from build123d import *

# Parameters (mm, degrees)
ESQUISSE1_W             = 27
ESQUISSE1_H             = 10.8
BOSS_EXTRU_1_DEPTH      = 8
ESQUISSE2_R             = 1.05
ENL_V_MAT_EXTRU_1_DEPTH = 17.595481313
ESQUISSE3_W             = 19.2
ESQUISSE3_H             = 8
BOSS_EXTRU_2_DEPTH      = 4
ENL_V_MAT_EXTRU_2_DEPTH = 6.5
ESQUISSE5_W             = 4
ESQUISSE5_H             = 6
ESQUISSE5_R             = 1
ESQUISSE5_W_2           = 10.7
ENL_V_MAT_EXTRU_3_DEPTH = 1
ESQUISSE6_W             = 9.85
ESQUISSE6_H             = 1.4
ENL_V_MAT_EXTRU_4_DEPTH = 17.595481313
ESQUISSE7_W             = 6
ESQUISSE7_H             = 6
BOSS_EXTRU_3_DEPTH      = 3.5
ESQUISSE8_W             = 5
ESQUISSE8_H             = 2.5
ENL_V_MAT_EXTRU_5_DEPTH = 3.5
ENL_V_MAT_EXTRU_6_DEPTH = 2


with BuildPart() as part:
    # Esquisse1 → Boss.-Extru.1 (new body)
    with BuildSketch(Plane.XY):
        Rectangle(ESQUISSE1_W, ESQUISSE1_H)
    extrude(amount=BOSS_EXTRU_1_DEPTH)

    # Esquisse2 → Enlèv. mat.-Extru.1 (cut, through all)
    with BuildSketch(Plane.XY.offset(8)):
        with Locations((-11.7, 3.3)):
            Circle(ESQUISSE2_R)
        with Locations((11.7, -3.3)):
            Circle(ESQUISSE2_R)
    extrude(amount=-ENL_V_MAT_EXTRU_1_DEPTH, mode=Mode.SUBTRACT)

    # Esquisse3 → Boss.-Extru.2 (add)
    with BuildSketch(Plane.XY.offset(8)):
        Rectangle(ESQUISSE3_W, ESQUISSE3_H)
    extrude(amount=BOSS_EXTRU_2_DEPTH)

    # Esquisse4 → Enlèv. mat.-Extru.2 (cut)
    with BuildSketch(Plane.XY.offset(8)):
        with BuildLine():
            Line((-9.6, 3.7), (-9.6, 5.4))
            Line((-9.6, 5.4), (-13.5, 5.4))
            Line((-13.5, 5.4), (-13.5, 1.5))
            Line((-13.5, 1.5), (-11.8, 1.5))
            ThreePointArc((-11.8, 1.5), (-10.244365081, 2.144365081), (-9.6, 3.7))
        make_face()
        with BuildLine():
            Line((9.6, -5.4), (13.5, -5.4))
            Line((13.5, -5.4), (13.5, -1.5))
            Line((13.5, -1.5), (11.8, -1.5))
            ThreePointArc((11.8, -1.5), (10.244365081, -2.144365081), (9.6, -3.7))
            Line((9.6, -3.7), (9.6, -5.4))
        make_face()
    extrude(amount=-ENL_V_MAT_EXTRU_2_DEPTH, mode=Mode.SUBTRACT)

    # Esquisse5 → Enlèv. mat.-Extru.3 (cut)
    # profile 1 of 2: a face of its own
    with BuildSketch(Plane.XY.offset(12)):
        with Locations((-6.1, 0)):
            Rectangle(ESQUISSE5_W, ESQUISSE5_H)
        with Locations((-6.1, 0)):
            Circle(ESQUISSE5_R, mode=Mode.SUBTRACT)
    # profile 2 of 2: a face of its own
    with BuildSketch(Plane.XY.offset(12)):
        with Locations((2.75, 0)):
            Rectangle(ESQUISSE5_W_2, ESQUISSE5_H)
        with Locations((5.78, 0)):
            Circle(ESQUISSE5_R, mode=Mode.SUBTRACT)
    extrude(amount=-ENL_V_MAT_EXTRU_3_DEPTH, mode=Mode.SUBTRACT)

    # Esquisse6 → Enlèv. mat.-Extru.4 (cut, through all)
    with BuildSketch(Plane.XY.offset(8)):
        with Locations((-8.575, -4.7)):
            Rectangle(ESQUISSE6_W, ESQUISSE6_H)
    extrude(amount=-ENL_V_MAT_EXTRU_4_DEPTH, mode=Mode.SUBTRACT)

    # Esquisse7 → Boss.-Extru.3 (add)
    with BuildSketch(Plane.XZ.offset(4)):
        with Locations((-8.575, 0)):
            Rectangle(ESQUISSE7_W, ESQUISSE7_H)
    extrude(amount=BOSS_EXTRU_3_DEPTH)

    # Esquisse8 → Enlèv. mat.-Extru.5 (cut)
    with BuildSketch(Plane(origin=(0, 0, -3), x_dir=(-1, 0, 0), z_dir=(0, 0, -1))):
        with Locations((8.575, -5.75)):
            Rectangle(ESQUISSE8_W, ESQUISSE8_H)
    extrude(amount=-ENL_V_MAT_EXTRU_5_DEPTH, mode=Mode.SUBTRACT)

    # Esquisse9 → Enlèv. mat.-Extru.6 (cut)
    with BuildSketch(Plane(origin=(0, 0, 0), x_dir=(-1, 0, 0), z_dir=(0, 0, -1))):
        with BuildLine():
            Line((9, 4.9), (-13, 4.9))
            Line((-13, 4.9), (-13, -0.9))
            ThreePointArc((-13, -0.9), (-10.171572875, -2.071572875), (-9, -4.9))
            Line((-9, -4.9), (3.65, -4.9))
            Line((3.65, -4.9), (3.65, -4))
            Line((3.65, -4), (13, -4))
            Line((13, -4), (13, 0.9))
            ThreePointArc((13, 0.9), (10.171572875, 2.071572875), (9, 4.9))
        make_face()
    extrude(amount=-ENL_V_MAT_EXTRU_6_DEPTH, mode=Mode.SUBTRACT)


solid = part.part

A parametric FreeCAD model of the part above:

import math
import FreeCAD as App
import Part
import Sketcher
Q = App.Units.Quantity

doc = App.newDocument("Part")
body = doc.addObject("PartDesign::Body", "Body")

# Sketch on XY plane
sketch1 = body.newObject("Sketcher::SketchObject", "Sketch")
sketch1.AttachmentSupport = (doc.getObject("XY_Plane"), [""])
sketch1.MapMode = "FlatFace"
sketch1.addGeometry([
    Part.LineSegment(App.Vector(-13.5, 5.4, 0), App.Vector(-13.5, -5.4, 0)),
    Part.LineSegment(App.Vector(-13.5, -5.4, 0), App.Vector(13.5, -5.4, 0)),
    Part.LineSegment(App.Vector(13.5, -5.4, 0), App.Vector(13.5, 5.4, 0)),
    Part.LineSegment(App.Vector(13.5, 5.4, 0), App.Vector(-13.5, 5.4, 0)),
], False)
sketch1.addConstraint([
    Sketcher.Constraint("Coincident", 0, 2, 1, 1),
    Sketcher.Constraint("Coincident", 1, 2, 2, 1),
    Sketcher.Constraint("Coincident", 2, 2, 3, 1),
    Sketcher.Constraint("Coincident", 3, 2, 0, 1),
    Sketcher.Constraint("Vertical", 0),
    Sketcher.Constraint("Horizontal", 1),
    Sketcher.Constraint("Vertical", 2),
    Sketcher.Constraint("Horizontal", 3),
    Sketcher.Constraint("Symmetric", 0, 2, 2, 2, -1, 1),
    Sketcher.Constraint("DistanceX", 1, 1, 1, 2, Q("27 mm")),
    Sketcher.Constraint("DistanceY", 0, 2, 0, 1, Q("10.8 mm")),
])
pad1 = body.newObject("PartDesign::Pad", "Pad")
pad1.Profile = sketch1
pad1.Length = 8

# Sketch on XY plane
sketch2 = body.newObject("Sketcher::SketchObject", "Sketch001")
sketch2.AttachmentSupport = (doc.getObject("XY_Plane"), [""])
sketch2.MapMode = "FlatFace"
sketch2.AttachmentOffset = App.Placement(App.Vector(0, 0, 8), App.Rotation())
sketch2.addGeometry([
    Part.Circle(App.Vector(-11.7, 3.3, 0), App.Vector(0, 0, 1), 1.05),
    Part.Circle(App.Vector(11.7, -3.3, 0), App.Vector(0, 0, 1), 1.05),
], False)
sketch2.addConstraint([
    Sketcher.Constraint("Equal", 0, 1),
    Sketcher.Constraint("Symmetric", 0, 3, 1, 3, -1, 1),
    Sketcher.Constraint("Diameter", 0, Q("2.1 mm")),
    Sketcher.Constraint("DistanceX", 0, 3, -1, 1, Q("11.7 mm")),
    Sketcher.Constraint("DistanceY", -1, 1, 0, 3, Q("3.3 mm")),
])
pocket1 = body.newObject("PartDesign::Pocket", "Pocket")
pocket1.Profile = sketch2
pocket1.Type = "ThroughAll"

# Sketch on XY plane
sketch3 = body.newObject("Sketcher::SketchObject", "Sketch002")
sketch3.AttachmentSupport = (doc.getObject("XY_Plane"), [""])
sketch3.MapMode = "FlatFace"
sketch3.AttachmentOffset = App.Placement(App.Vector(0, 0, 8), App.Rotation())
sketch3.addGeometry([
    Part.LineSegment(App.Vector(-9.6, 4, 0), App.Vector(-9.6, -4, 0)),
    Part.LineSegment(App.Vector(-9.6, -4, 0), App.Vector(9.6, -4, 0)),
    Part.LineSegment(App.Vector(9.6, -4, 0), App.Vector(9.6, 4, 0)),
    Part.LineSegment(App.Vector(9.6, 4, 0), App.Vector(-9.6, 4, 0)),
], False)
sketch3.addConstraint([
    Sketcher.Constraint("Coincident", 0, 2, 1, 1),
    Sketcher.Constraint("Coincident", 1, 2, 2, 1),
    Sketcher.Constraint("Coincident", 2, 2, 3, 1),
    Sketcher.Constraint("Coincident", 3, 2, 0, 1),
    Sketcher.Constraint("Vertical", 0),
    Sketcher.Constraint("Horizontal", 1),
    Sketcher.Constraint("Vertical", 2),
    Sketcher.Constraint("Horizontal", 3),
    Sketcher.Constraint("Symmetric", 0, 2, 2, 2, -1, 1),
    Sketcher.Constraint("DistanceY", 0, 2, 0, 1, Q("8 mm")),
    Sketcher.Constraint("DistanceX", 1, 1, 1, 2, Q("19.2 mm")),
])
pad2 = body.newObject("PartDesign::Pad", "Pad001")
pad2.Profile = sketch3
pad2.Length = 4

# Sketch on XY plane
sketch4 = body.newObject("Sketcher::SketchObject", "Sketch003")
sketch4.AttachmentSupport = (doc.getObject("XY_Plane"), [""])
sketch4.MapMode = "FlatFace"
sketch4.AttachmentOffset = App.Placement(App.Vector(0, 0, 8), App.Rotation())
sketch4.addGeometry([
    Part.LineSegment(App.Vector(-9.6, 3.7, 0), App.Vector(-9.6, 5.4, 0)),  # 0
    Part.LineSegment(App.Vector(-9.6, 5.4, 0), App.Vector(-13.5, 5.4, 0)),  # 1
    Part.LineSegment(App.Vector(-13.5, 5.4, 0), App.Vector(-13.5, 1.5, 0)),  # 2
    Part.LineSegment(App.Vector(-13.5, 1.5, 0), App.Vector(-11.8, 1.5, 0)),  # 3
    Part.ArcOfCircle(Part.Circle(App.Vector(-11.8, 3.7, 0), App.Vector(0, 0, 1), 2.2), math.radians(-90), math.radians(0)),  # 4
    Part.LineSegment(App.Vector(9.6, -5.4, 0), App.Vector(13.5, -5.4, 0)),  # 5
    Part.LineSegment(App.Vector(13.5, -5.4, 0), App.Vector(13.5, -1.5, 0)),  # 6
    Part.LineSegment(App.Vector(13.5, -1.5, 0), App.Vector(11.8, -1.5, 0)),  # 7
    Part.ArcOfCircle(Part.Circle(App.Vector(11.8, -3.7, 0), App.Vector(0, 0, 1), 2.2), math.radians(90), math.radians(180)),  # 8
    Part.LineSegment(App.Vector(9.6, -3.7, 0), App.Vector(9.6, -5.4, 0)),  # 9
], False)
sketch4.addConstraint([
    Sketcher.Constraint("Coincident", 0, 2, 1, 1),
    Sketcher.Constraint("Coincident", 1, 2, 2, 1),
    Sketcher.Constraint("Coincident", 2, 2, 3, 1),
    Sketcher.Constraint("Tangent", 3, 2, 4, 1),
    Sketcher.Constraint("Tangent", 4, 2, 0, 1),
    Sketcher.Constraint("Coincident", 5, 2, 6, 1),
    Sketcher.Constraint("Coincident", 6, 2, 7, 1),
    Sketcher.Constraint("Tangent", 7, 2, 8, 1),
    Sketcher.Constraint("Tangent", 8, 2, 9, 1),
    Sketcher.Constraint("Coincident", 9, 2, 5, 1),
    Sketcher.Constraint("Vertical", 0),
    Sketcher.Constraint("Horizontal", 1),
    Sketcher.Constraint("Vertical", 2),
    Sketcher.Constraint("Horizontal", 3),
    Sketcher.Constraint("Horizontal", 5),
    Sketcher.Constraint("Vertical", 6),
    Sketcher.Constraint("Horizontal", 7),
    Sketcher.Constraint("Vertical", 9),
    Sketcher.Constraint("Equal", 4, 8),
    Sketcher.Constraint("Symmetric", 4, 3, 8, 3, -1, 1),
    Sketcher.Constraint("Symmetric", 1, 2, 5, 2, -1, 1),
    Sketcher.Constraint("Equal", 7, 0),
    Sketcher.Constraint("Radius", 4, Q("2.2 mm")),
    Sketcher.Constraint("DistanceX", 1, 2, 1, 1, Q("3.9 mm")),
    Sketcher.Constraint("DistanceY", 6, 2, 3, 2, Q("3 mm")),
    Sketcher.Constraint("DistanceX", 4, 3, -1, 1, Q("11.8 mm")),
])
pocket2 = body.newObject("PartDesign::Pocket", "Pocket001")
pocket2.Profile = sketch4
pocket2.Length = 6.5

# Sketch on XY plane
sketch5 = body.newObject("Sketcher::SketchObject", "Sketch004")
sketch5.AttachmentSupport = (doc.getObject("XY_Plane"), [""])
sketch5.MapMode = "FlatFace"
sketch5.AttachmentOffset = App.Placement(App.Vector(0, 0, 12), App.Rotation())
sketch5.addGeometry([
    Part.LineSegment(App.Vector(-8.1, 3, 0), App.Vector(-8.1, -3, 0)),  # 0
    Part.LineSegment(App.Vector(-8.1, -3, 0), App.Vector(-4.1, -3, 0)),  # 1
    Part.LineSegment(App.Vector(-4.1, -3, 0), App.Vector(-4.1, 3, 0)),  # 2
    Part.LineSegment(App.Vector(-4.1, 3, 0), App.Vector(-8.1, 3, 0)),  # 3
    Part.Circle(App.Vector(-6.1, 0, 0), App.Vector(0, 0, 1), 1),  # 4
    Part.LineSegment(App.Vector(-2.6, 3, 0), App.Vector(-2.6, -3, 0)),  # 5
    Part.LineSegment(App.Vector(-2.6, -3, 0), App.Vector(8.1, -3, 0)),  # 6
    Part.LineSegment(App.Vector(8.1, -3, 0), App.Vector(8.1, 3, 0)),  # 7
    Part.LineSegment(App.Vector(8.1, 3, 0), App.Vector(-2.6, 3, 0)),  # 8
    Part.Circle(App.Vector(5.78, 0, 0), App.Vector(0, 0, 1), 1),  # 9
], False)
sketch5.addConstraint([
    Sketcher.Constraint("Coincident", 0, 2, 1, 1),
    Sketcher.Constraint("Coincident", 1, 2, 2, 1),
    Sketcher.Constraint("Coincident", 2, 2, 3, 1),
    Sketcher.Constraint("Coincident", 3, 2, 0, 1),
    Sketcher.Constraint("Coincident", 5, 2, 6, 1),
    Sketcher.Constraint("Coincident", 6, 2, 7, 1),
    Sketcher.Constraint("Coincident", 7, 2, 8, 1),
    Sketcher.Constraint("Coincident", 8, 2, 5, 1),
    Sketcher.Constraint("Vertical", 0),
    Sketcher.Constraint("Horizontal", 1),
    Sketcher.Constraint("Vertical", 2),
    Sketcher.Constraint("Horizontal", 3),
    Sketcher.Constraint("Vertical", 5),
    Sketcher.Constraint("Horizontal", 6),
    Sketcher.Constraint("Vertical", 7),
    Sketcher.Constraint("Horizontal", 8),
    Sketcher.Constraint("Equal", 4, 9),
    Sketcher.Constraint("Symmetric", 3, 2, 6, 2, -1, 1),
    Sketcher.Constraint("PointOnObject", 4, 3, -1),
    Sketcher.Constraint("PointOnObject", 9, 3, -1),
    Sketcher.Constraint("Horizontal", 1, 2, 5, 2),
    Sketcher.Constraint("Horizontal", 3, 2, 7, 2),
    Sketcher.Constraint("Diameter", 4, Q("2 mm")),
    Sketcher.Constraint("DistanceX", 1, 1, 1, 2, Q("4 mm")),
    Sketcher.Constraint("DistanceY", 0, 2, 0, 1, Q("6 mm")),
    Sketcher.Constraint("DistanceX", 6, 1, 6, 2, Q("10.7 mm")),
    Sketcher.Constraint("DistanceX", 0, 2, 4, 3, Q("2 mm")),
    Sketcher.Constraint("DistanceX", 4, 3, -1, 1, Q("6.1 mm")),
    Sketcher.Constraint("DistanceX", -1, 1, 9, 3, Q("5.78 mm")),
])
pocket3 = body.newObject("PartDesign::Pocket", "Pocket002")
pocket3.Profile = sketch5
pocket3.Length = 1

# Sketch on XY plane
sketch6 = body.newObject("Sketcher::SketchObject", "Sketch005")
sketch6.AttachmentSupport = (doc.getObject("XY_Plane"), [""])
sketch6.MapMode = "FlatFace"
sketch6.AttachmentOffset = App.Placement(App.Vector(0, 0, 8), App.Rotation())
sketch6.addGeometry([
    Part.LineSegment(App.Vector(-13.5, -4, 0), App.Vector(-13.5, -5.4, 0)),
    Part.LineSegment(App.Vector(-13.5, -5.4, 0), App.Vector(-3.65, -5.4, 0)),
    Part.LineSegment(App.Vector(-3.65, -5.4, 0), App.Vector(-3.65, -4, 0)),
    Part.LineSegment(App.Vector(-3.65, -4, 0), App.Vector(-13.5, -4, 0)),
], False)
sketch6.addConstraint([
    Sketcher.Constraint("Coincident", 0, 2, 1, 1),
    Sketcher.Constraint("Coincident", 1, 2, 2, 1),
    Sketcher.Constraint("Coincident", 2, 2, 3, 1),
    Sketcher.Constraint("Coincident", 3, 2, 0, 1),
    Sketcher.Constraint("Vertical", 0),
    Sketcher.Constraint("Horizontal", 1),
    Sketcher.Constraint("Vertical", 2),
    Sketcher.Constraint("Horizontal", 3),
    Sketcher.Constraint("DistanceY", 0, 2, 0, 1, Q("1.4 mm")),
    Sketcher.Constraint("DistanceY", 2, 2, -1, 1, Q("4 mm")),
    Sketcher.Constraint("DistanceX", 1, 1, 1, 2, Q("9.85 mm")),
    Sketcher.Constraint("DistanceX", 0, 2, -1, 1, Q("13.5 mm")),
])
pocket4 = body.newObject("PartDesign::Pocket", "Pocket003")
pocket4.Profile = sketch6
pocket4.Type = "ThroughAll"

# Sketch on XZ plane
sketch7 = body.newObject("Sketcher::SketchObject", "Sketch006")
sketch7.AttachmentSupport = (doc.getObject("XZ_Plane"), [""])
sketch7.MapMode = "FlatFace"
sketch7.AttachmentOffset = App.Placement(App.Vector(0, 0, 4), App.Rotation())
sketch7.addGeometry([
    Part.LineSegment(App.Vector(-11.575, 3, 0), App.Vector(-11.575, -3, 0)),
    Part.LineSegment(App.Vector(-11.575, -3, 0), App.Vector(-5.575, -3, 0)),
    Part.LineSegment(App.Vector(-5.575, -3, 0), App.Vector(-5.575, 3, 0)),
    Part.LineSegment(App.Vector(-5.575, 3, 0), App.Vector(-11.575, 3, 0)),
], False)
sketch7.addConstraint([
    Sketcher.Constraint("Coincident", 0, 2, 1, 1),
    Sketcher.Constraint("Coincident", 1, 2, 2, 1),
    Sketcher.Constraint("Coincident", 2, 2, 3, 1),
    Sketcher.Constraint("Coincident", 3, 2, 0, 1),
    Sketcher.Constraint("Vertical", 0),
    Sketcher.Constraint("Horizontal", 1),
    Sketcher.Constraint("Vertical", 2),
    Sketcher.Constraint("Horizontal", 3),
    Sketcher.Constraint("Equal", 3, 0),
    Sketcher.Constraint("DistanceX", 1, 1, 1, 2, Q("6 mm")),
    Sketcher.Constraint("DistanceY", 0, 2, -1, 1, Q("3 mm")),
    Sketcher.Constraint("DistanceX", 0, 2, -1, 1, Q("11.575 mm")),
])
pad3 = body.newObject("PartDesign::Pad", "Pad002")
pad3.Profile = sketch7
pad3.Length = 3.5

# Sketch on XY plane
sketch8 = body.newObject("Sketcher::SketchObject", "Sketch007")
sketch8.AttachmentSupport = (doc.getObject("XY_Plane"), [""])
sketch8.MapMode = "FlatFace"
sketch8.AttachmentOffset = App.Placement(App.Vector(0, 0, -3), App.Rotation())
sketch8.addGeometry([
    Part.LineSegment(App.Vector(-6.075, -4.5, 0), App.Vector(-6.075, -7, 0)),
    Part.LineSegment(App.Vector(-6.075, -7, 0), App.Vector(-11.075, -7, 0)),
    Part.LineSegment(App.Vector(-11.075, -7, 0), App.Vector(-11.075, -4.5, 0)),
    Part.LineSegment(App.Vector(-11.075, -4.5, 0), App.Vector(-6.075, -4.5, 0)),
], False)
sketch8.addConstraint([
    Sketcher.Constraint("Coincident", 0, 2, 1, 1),
    Sketcher.Constraint("Coincident", 1, 2, 2, 1),
    Sketcher.Constraint("Coincident", 2, 2, 3, 1),
    Sketcher.Constraint("Coincident", 3, 2, 0, 1),
    Sketcher.Constraint("Vertical", 0),
    Sketcher.Constraint("Horizontal", 1),
    Sketcher.Constraint("Vertical", 2),
    Sketcher.Constraint("Horizontal", 3),
    Sketcher.Constraint("DistanceX", 1, 2, 1, 1, Q("5 mm")),
    Sketcher.Constraint("DistanceY", 0, 2, 0, 1, Q("2.5 mm")),
    Sketcher.Constraint("DistanceY", 0, 2, -1, 1, Q("7 mm")),
    Sketcher.Constraint("DistanceX", 0, 2, -1, 1, Q("6.075 mm")),
])
pocket5 = body.newObject("PartDesign::Pocket", "Pocket004")
pocket5.Profile = sketch8
pocket5.Length = 3.5
pocket5.Reversed = True

# Sketch on XY plane
sketch9 = body.newObject("Sketcher::SketchObject", "Sketch008")
sketch9.AttachmentSupport = (doc.getObject("XY_Plane"), [""])
sketch9.MapMode = "FlatFace"
sketch9.addGeometry([
    Part.LineSegment(App.Vector(-9, 4.9, 0), App.Vector(13, 4.9, 0)),  # 0
    Part.LineSegment(App.Vector(13, 4.9, 0), App.Vector(13, -0.9, 0)),  # 1
    Part.ArcOfCircle(Part.Circle(App.Vector(13, -4.9, 0), App.Vector(0, 0, 1), 4), math.radians(90), math.radians(180)),  # 2
    Part.LineSegment(App.Vector(9, -4.9, 0), App.Vector(-3.65, -4.9, 0)),  # 3
    Part.LineSegment(App.Vector(-3.65, -4.9, 0), App.Vector(-3.65, -4, 0)),  # 4
    Part.LineSegment(App.Vector(-3.65, -4, 0), App.Vector(-13, -4, 0)),  # 5
    Part.LineSegment(App.Vector(-13, -4, 0), App.Vector(-13, 0.9, 0)),  # 6
    Part.ArcOfCircle(Part.Circle(App.Vector(-13, 4.9, 0), App.Vector(0, 0, 1), 4), math.radians(-90), math.radians(0)),  # 7
], False)
sketch9.addConstraint([
    Sketcher.Constraint("Coincident", 0, 2, 1, 1),
    Sketcher.Constraint("Coincident", 1, 2, 2, 1),
    Sketcher.Constraint("Coincident", 2, 2, 3, 1),
    Sketcher.Constraint("Coincident", 3, 2, 4, 1),
    Sketcher.Constraint("Coincident", 4, 2, 5, 1),
    Sketcher.Constraint("Coincident", 5, 2, 6, 1),
    Sketcher.Constraint("Coincident", 6, 2, 7, 1),
    Sketcher.Constraint("Coincident", 7, 2, 0, 1),
    Sketcher.Constraint("Horizontal", 0),
    Sketcher.Constraint("Vertical", 1),
    Sketcher.Constraint("Horizontal", 3),
    Sketcher.Constraint("Vertical", 4),
    Sketcher.Constraint("Horizontal", 5),
    Sketcher.Constraint("Vertical", 6),
    Sketcher.Constraint("Equal", 2, 7),
    Sketcher.Constraint("Symmetric", 2, 3, 7, 3, -1, 1),
    Sketcher.Constraint("Horizontal", 7, 3, 0, 2),
    Sketcher.Constraint("Vertical", 2, 3, 0, 2),
    Sketcher.Constraint("Vertical", 7, 3, 5, 2),
    Sketcher.Constraint("Radius", 2, Q("4 mm")),
    Sketcher.Constraint("DistanceX", 0, 1, 0, 2, Q("22 mm")),
    Sketcher.Constraint("DistanceY", 1, 2, 1, 1, Q("5.8 mm")),
    Sketcher.Constraint("DistanceY", 4, 1, 4, 2, Q("0.9 mm")),
    Sketcher.Constraint("DistanceY", 6, 1, 6, 2, Q("4.9 mm")),
    Sketcher.Constraint("DistanceX", 3, 2, 3, 1, Q("12.65 mm")),
])
pocket6 = body.newObject("PartDesign::Pocket", "Pocket005")
pocket6.Profile = sketch9
pocket6.Length = 2
pocket6.Reversed = True

doc.recompute()
